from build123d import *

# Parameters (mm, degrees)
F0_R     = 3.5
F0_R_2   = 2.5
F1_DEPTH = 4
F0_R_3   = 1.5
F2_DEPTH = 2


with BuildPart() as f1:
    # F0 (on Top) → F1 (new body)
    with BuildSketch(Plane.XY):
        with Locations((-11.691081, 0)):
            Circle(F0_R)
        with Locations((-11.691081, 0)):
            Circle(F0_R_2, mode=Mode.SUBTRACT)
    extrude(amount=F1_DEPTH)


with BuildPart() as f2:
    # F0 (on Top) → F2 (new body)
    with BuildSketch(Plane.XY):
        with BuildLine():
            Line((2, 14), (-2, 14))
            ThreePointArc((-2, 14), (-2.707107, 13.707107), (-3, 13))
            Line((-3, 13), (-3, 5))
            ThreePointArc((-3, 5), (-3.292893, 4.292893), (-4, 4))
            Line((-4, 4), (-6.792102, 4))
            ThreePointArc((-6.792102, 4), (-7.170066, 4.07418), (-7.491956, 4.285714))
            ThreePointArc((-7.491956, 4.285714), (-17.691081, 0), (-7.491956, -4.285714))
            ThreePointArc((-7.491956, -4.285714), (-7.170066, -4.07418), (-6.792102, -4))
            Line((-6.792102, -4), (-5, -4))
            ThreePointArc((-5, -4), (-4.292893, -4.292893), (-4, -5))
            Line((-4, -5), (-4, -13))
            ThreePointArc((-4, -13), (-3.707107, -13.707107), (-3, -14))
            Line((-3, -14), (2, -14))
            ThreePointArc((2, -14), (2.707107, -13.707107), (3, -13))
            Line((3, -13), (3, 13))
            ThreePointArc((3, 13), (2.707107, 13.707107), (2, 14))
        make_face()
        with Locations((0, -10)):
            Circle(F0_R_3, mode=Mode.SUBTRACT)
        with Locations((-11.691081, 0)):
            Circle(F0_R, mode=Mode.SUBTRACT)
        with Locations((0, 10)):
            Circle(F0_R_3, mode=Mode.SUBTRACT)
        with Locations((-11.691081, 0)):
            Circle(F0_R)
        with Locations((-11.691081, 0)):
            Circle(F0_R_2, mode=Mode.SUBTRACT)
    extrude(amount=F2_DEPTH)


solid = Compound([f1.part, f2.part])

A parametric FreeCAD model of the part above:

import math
import FreeCAD as App
import Part
import Sketcher
from FreeCAD import Vector
Q = App.Units.Quantity

doc = App.newDocument("Part")
params = doc.addObject("Spreadsheet::Sheet", "Params")
for row, (alias, value) in enumerate([
    ("sketch1_diameter", "7 mm"),
    ("sketch1_diameter2", "5 mm"),
    ("pad1_length", "4 mm"),
    ("sketch2_diameter", "3 mm"),
    ("sketch2_diameter2", "5 mm"),
    ("sketch2_radius", "0.999999 mm"),
    ("sketch2_radius2", "6 mm"),
    ("sketch2_width", "4 mm"),
    ("pad2_length", "2 mm"),
], start=1):
    params.set(f"A{row}", alias)
    params.set(f"B{row}", "=" + value)
    params.setAlias(f"B{row}", alias)

body = doc.addObject("PartDesign::Body", "Body")

sketch1 = body.newObject("Sketcher::SketchObject", "Sketch")
sketch1.AttachmentSupport = (doc.getObject("XY_Plane"), [""])
sketch1.MapMode = "FlatFace"
sketch1.addGeometry([
    Part.Circle(Vector(-11.691081, 0, 0), Vector(0, 0, 1), 3.5),
    Part.Circle(Vector(-11.691081, 0, 0), Vector(0, 0, 1), 2.5),
], False)
sketch1.addConstraint([
    Sketcher.Constraint("Coincident", 1, 3, 0, 3),
    Sketcher.Constraint("PointOnObject", 0, 3, -1),
    Sketcher.Constraint("Diameter", 0, Q("7 mm")),
    Sketcher.Constraint("Diameter", 1, Q("5 mm")),
    Sketcher.Constraint("DistanceX", 0, 3, -1, 1, Q("11.691081 mm")),
])
sketch1.setExpression("Constraints[2]", "Params.sketch1_diameter")
sketch1.setExpression("Constraints[3]", "Params.sketch1_diameter2")
pad1 = body.newObject("PartDesign::Pad", "Pad")
pad1.Profile = sketch1
pad1.setExpression("Length", "Params.pad1_length")
body2 = doc.addObject("PartDesign::Body", "Body001")

sketch2 = body2.newObject("Sketcher::SketchObject", "Sketch001")
sketch2.AttachmentSupport = (doc.getObject("XY_Plane001"), [""])
sketch2.MapMode = "FlatFace"
sketch2.addGeometry([
    Part.LineSegment(Vector(2, 14, 0), Vector(-2, 14, 0)),
    Part.ArcOfCircle(Part.Circle(Vector(-2.000001, 13.000001, 0), Vector(0, 0, 1), 0.999999), math.radians(89.999957), math.radians(180.000043)),
    Part.LineSegment(Vector(-3, 13, 0), Vector(-3, 5, 0)),
    Part.ArcOfCircle(Part.Circle(Vector(-3.999999, 4.999999, 0), Vector(0, 0, 1), 0.999999), math.radians(-90.000043), math.radians(0.000043)),
    Part.LineSegment(Vector(-4, 4, 0), Vector(-6.792102, 4, 0)),
    Part.ArcOfCircle(Part.Circle(Vector(-6.792101, 5.000004, 0), Vector(0, 0, 1), 1.000004), math.radians(-134.415197), math.radians(-90.000083)),
    Part.ArcOfCircle(Part.Circle(Vector(-11.691081, 0, 0), Vector(0, 0, 1), 6), math.radians(45.58469), math.radians(314.41531)),
    Part.ArcOfCircle(Part.Circle(Vector(-6.792101, -5.000004, 0), Vector(0, 0, 1), 1.000004), math.radians(90.000083), math.radians(134.415197)),
    Part.LineSegment(Vector(-6.792102, -4, 0), Vector(-5, -4, 0)),
    Part.ArcOfCircle(Part.Circle(Vector(-4.999999, -4.999999, 0), Vector(0, 0, 1), 0.999999), math.radians(-0.000043), math.radians(90.000043)),
    Part.LineSegment(Vector(-4, -5, 0), Vector(-4, -13, 0)),
    Part.ArcOfCircle(Part.Circle(Vector(-3.000001, -13.000001, 0), Vector(0, 0, 1), 0.999999), math.radians(179.999957), math.radians(270.000043)),
    Part.LineSegment(Vector(-3, -14, 0), Vector(2, -14, 0)),
    Part.ArcOfCircle(Part.Circle(Vector(2.000001, -13.000001, 0), Vector(0, 0, 1), 0.999999), math.radians(-90.000043), math.radians(0.000043)),
    Part.LineSegment(Vector(3, -13, 0), Vector(3, 13, 0)),
    Part.ArcOfCircle(Part.Circle(Vector(2.000001, 13.000001, 0), Vector(0, 0, 1), 0.999999), math.radians(-0.000043), math.radians(90.000043)),
    Part.Circle(Vector(0, -10, 0), Vector(0, 0, 1), 1.5),
    Part.Circle(Vector(-11.691081, 0, 0), Vector(0, 0, 1), 2.5),
    Part.Circle(Vector(0, 10, 0), Vector(0, 0, 1), 1.5),
], False)
sketch2.addConstraint([
    Sketcher.Constraint("Tangent", 0, 2, 1, 1),
    Sketcher.Constraint("Tangent", 1, 2, 2, 1),
    Sketcher.Constraint("Tangent", 2, 2, 3, 2),
    Sketcher.Constraint("Tangent", 3, 1, 4, 1),
    Sketcher.Constraint("Tangent", 4, 2, 5, 2),
    Sketcher.Constraint("Tangent", 5, 1, 6, 1),
    Sketcher.Constraint("Tangent", 6, 2, 7, 2),
    Sketcher.Constraint("Tangent", 7, 1, 8, 1),
    Sketcher.Constraint("Tangent", 8, 2, 9, 2),
    Sketcher.Constraint("Tangent", 9, 1, 10, 1),
    Sketcher.Constraint("Tangent", 10, 2, 11, 1),
    Sketcher.Constraint("Tangent", 11, 2, 12, 1),
    Sketcher.Constraint("Tangent", 12, 2, 13, 1),
    Sketcher.Constraint("Tangent", 13, 2, 14, 1),
    Sketcher.Constraint("Tangent", 14, 2, 15, 1),
    Sketcher.Constraint("Tangent", 15, 2, 0, 1),
    Sketcher.Constraint("Horizontal", 0),
    Sketcher.Constraint("Vertical", 2),
    Sketcher.Constraint("Horizontal", 4),
    Sketcher.Constraint("Horizontal", 8),
    Sketcher.Constraint("Vertical", 10),
    Sketcher.Constraint("Horizontal", 12),
    Sketcher.Constraint("Vertical", 14),
    Sketcher.Constraint("Coincident", 17, 3, 6, 3),
    Sketcher.Constraint("Equal", 1, 3),
    Sketcher.Constraint("Equal", 5, 7),
    Sketcher.Constraint("Equal", 3, 9),
    Sketcher.Constraint("Equal", 9, 11),
    Sketcher.Constraint("Equal", 11, 13),
    Sketcher.Constraint("Equal", 13, 15),
    Sketcher.Constraint("Equal", 16, 18),
    Sketcher.Constraint("Symmetric", 1, 3, 13, 3, -1, 1),
    Sketcher.Constraint("Symmetric", 16, 3, 18, 3, -1, 1),
    Sketcher.Constraint("Symmetric", 5, 3, 7, 3, -1),
    Sketcher.Constraint("PointOnObject", 16, 3, -2),
    Sketcher.Constraint("Vertical", 11, 3, 1, 2),
    Sketcher.Constraint("Diameter", 16, Q("3 mm")),
    Sketcher.Constraint("Diameter", 17, Q("5 mm")),
    Sketcher.Constraint("Radius", 1, Q("0.999999 mm")),
    Sketcher.Constraint("Radius", 6, Q("6 mm")),
    Sketcher.Constraint("DistanceX", 0, 2, 0, 1, Q("4 mm")),
    Sketcher.Constraint("DistanceY", 2, 2, 2, 1, Q("8 mm")),
    Sketcher.Constraint("DistanceY", 14, 1, 14, 2, Q("26 mm")),
    Sketcher.Constraint("DistanceY", 16, 3, -1, 1, Q("10 mm")),
    Sketcher.Constraint("DistanceX", 4, 2, 4, 1, Q("2.792102 mm")),
    Sketcher.Constraint("Radius", 5, Q("1.000004 mm")),
])
sketch2.setExpression("Constraints[36]", "Params.sketch2_diameter")
sketch2.setExpression("Constraints[37]", "Params.sketch2_diameter2")
sketch2.setExpression("Constraints[38]", "Params.sketch2_radius")
sketch2.setExpression("Constraints[39]", "Params.sketch2_radius2")
sketch2.setExpression("Constraints[40]", "Params.sketch2_width")
pad2 = body2.newObject("PartDesign::Pad", "Pad001")
pad2.Profile = sketch2
pad2.setExpression("Length", "Params.pad2_length")

doc.recompute()
